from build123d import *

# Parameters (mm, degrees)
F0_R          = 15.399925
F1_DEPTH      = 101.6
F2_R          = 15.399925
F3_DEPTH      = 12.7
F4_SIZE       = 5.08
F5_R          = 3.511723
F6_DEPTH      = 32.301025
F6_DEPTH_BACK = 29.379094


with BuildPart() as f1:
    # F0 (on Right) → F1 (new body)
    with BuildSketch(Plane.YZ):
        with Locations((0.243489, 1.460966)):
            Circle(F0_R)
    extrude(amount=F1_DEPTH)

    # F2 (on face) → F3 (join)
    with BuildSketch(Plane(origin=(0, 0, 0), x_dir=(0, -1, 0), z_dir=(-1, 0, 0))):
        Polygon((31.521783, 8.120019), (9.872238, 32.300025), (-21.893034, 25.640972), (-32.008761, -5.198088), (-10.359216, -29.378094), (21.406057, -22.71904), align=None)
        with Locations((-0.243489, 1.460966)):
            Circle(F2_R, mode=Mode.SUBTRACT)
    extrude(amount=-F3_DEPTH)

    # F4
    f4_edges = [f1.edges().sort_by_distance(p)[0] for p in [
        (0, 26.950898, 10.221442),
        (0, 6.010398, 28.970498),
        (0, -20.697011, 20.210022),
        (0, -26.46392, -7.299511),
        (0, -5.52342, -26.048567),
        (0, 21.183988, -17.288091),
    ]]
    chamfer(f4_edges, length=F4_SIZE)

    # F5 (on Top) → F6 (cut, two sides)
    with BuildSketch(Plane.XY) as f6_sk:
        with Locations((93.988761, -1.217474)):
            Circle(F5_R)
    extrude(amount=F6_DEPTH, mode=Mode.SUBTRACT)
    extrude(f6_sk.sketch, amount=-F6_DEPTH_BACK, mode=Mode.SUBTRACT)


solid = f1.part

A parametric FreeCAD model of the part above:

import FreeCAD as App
import Part
import Sketcher
from FreeCAD import Vector
Q = App.Units.Quantity


def edges_at(feature, points):
    """Names of the edges that pass closest to the given points."""
    edges = feature.Shape.Edges
    near = lambda p: min(range(len(edges)), key=lambda i: edges[i].distToShape(Part.Vertex(*p))[0])
    return sorted({f"Edge{near(p) + 1}" for p in points})

doc = App.newDocument("Part")
body = doc.addObject("PartDesign::Body", "Body")

sketch1 = doc.addObject("Sketcher::SketchObject", "Sketch")
body.addObject(sketch1)
sketch1.AttachmentSupport = (doc.YZ_Plane, [""])
sketch1.MapMode = "FlatFace"
sketch1.addGeometry(Part.Circle(Vector(0, 1, 0), Vector(0, 0, 1), 15), False)
sketch1.addConstraint(Sketcher.Constraint("Diameter", 0, Q("30.79985 mm")))
sketch1.addConstraint(Sketcher.Constraint("DistanceX", -1, 1, 0, 3, Q("0.243489 mm")))
sketch1.addConstraint(Sketcher.Constraint("DistanceY", -1, 1, 0, 3, Q("1.460966 mm")))
pad1 = doc.addObject("PartDesign::Pad", "Pad")
body.addObject(pad1)
pad1.Profile = sketch1
pad1.Length = Q("4 in")

sketch2 = doc.addObject("Sketcher::SketchObject", "Sketch001")
body.addObject(sketch2)
sketch2.AttachmentSupport = (doc.YZ_Plane, [""])
sketch2.MapMode = "FlatFace"
sketch2.addGeometry(Part.LineSegment(Vector(-32, 8, 0), Vector(-10, 32, 0)), False)
sketch2.addGeometry(Part.LineSegment(Vector(-10, 32, 0), Vector(22, 26, 0)), False)
sketch2.addGeometry(Part.LineSegment(Vector(22, 26, 0), Vector(32, -5, 0)), False)
sketch2.addGeometry(Part.LineSegment(Vector(32, -5, 0), Vector(10, -29, 0)), False)
sketch2.addGeometry(Part.LineSegment(Vector(10, -29, 0), Vector(-21, -23, 0)), False)
sketch2.addGeometry(Part.LineSegment(Vector(-21, -23, 0), Vector(-32, 8, 0)), False)
sketch2.addGeometry(Part.Circle(Vector(0, 1, 0), Vector(0, 0, 1), 15), False)
sketch2.addConstraint(Sketcher.Constraint("Coincident", 0, 2, 1, 1))
sketch2.addConstraint(Sketcher.Constraint("Coincident", 1, 2, 2, 1))
sketch2.addConstraint(Sketcher.Constraint("Coincident", 2, 2, 3, 1))
sketch2.addConstraint(Sketcher.Constraint("Coincident", 3, 2, 4, 1))
sketch2.addConstraint(Sketcher.Constraint("Coincident", 4, 2, 5, 1))
sketch2.addConstraint(Sketcher.Constraint("Coincident", 5, 2, 0, 1))
sketch2.addConstraint(Sketcher.Constraint("Parallel", 0, 3))
sketch2.addConstraint(Sketcher.Constraint("Parallel", 1, 4))
sketch2.addConstraint(Sketcher.Constraint("Parallel", 2, 5))
sketch2.addConstraint(Sketcher.Constraint("Equal", 0, 1))
sketch2.addConstraint(Sketcher.Constraint("Equal", 1, 2))
sketch2.addConstraint(Sketcher.Constraint("Equal", 2, 3))
sketch2.addConstraint(Sketcher.Constraint("Diameter", 6, Q("30.79985 mm")))
sketch2.addConstraint(Sketcher.Constraint("DistanceX", 0, 2, 2, 2, Q("41.880999 mm")))
sketch2.addConstraint(Sketcher.Constraint("DistanceX", -1, 1, 6, 3, Q("0.243489 mm")))
sketch2.addConstraint(Sketcher.Constraint("DistanceX", -1, 1, 2, 2, Q("32.008761 mm")))
sketch2.addConstraint(Sketcher.Constraint("DistanceY", 2, 2, -1, 1, Q("5.198088 mm")))
sketch2.addConstraint(Sketcher.Constraint("DistanceY", 4, 2, -1, 1, Q("22.71904 mm")))
sketch2.addConstraint(Sketcher.Constraint("DistanceY", -1, 1, 5, 2, Q("8.120019 mm")))
sketch2.addConstraint(Sketcher.Constraint("DistanceY", 6, 3, 0, 2, Q("30.839059 mm")))
sketch2.addConstraint(Sketcher.Constraint("DistanceX", 0, 2, 1, 2, Q("31.765272 mm")))
pad2 = doc.addObject("PartDesign::Pad", "Pad001")
body.addObject(pad2)
pad2.Profile = sketch2
pad2.Length = Q("0.5 in")
doc.recompute()

chamfer = doc.addObject("PartDesign::Chamfer", "Chamfer")
body.addObject(chamfer)
chamfer.Base = (pad2, edges_at(pad2, [
    (0, 26.951, 10.221),
    (0, 6.01, 28.97),
    (0, -20.697, 20.21),
    (0, -26.464, -7.3),
    (0, -5.523, -26.049),
    (0, 21.184, -17.288),
]))
chamfer.Size = Q("0.2 in")

sketch3 = doc.addObject("Sketcher::SketchObject", "Sketch002")
body.addObject(sketch3)
sketch3.AttachmentSupport = (doc.XY_Plane, [""])
sketch3.MapMode = "FlatFace"
sketch3.addGeometry(Part.Circle(Vector(94, -1.2, 0), Vector(0, 0, 1), 3.5), False)
sketch3.addConstraint(Sketcher.Constraint("Diameter", 0, Q("7.023446 mm")))
sketch3.addConstraint(Sketcher.Constraint("DistanceX", -1, 1, 0, 3, Q("93.988761 mm")))
sketch3.addConstraint(Sketcher.Constraint("DistanceY", 0, 3, -1, 1, Q("1.217474 mm")))
pocket1 = doc.addObject("PartDesign::Pocket", "Pocket")
body.addObject(pocket1)
pocket1.Profile = sketch3
pocket1.Type = "ThroughAll"
pocket1.Midplane = True

doc.recompute()
